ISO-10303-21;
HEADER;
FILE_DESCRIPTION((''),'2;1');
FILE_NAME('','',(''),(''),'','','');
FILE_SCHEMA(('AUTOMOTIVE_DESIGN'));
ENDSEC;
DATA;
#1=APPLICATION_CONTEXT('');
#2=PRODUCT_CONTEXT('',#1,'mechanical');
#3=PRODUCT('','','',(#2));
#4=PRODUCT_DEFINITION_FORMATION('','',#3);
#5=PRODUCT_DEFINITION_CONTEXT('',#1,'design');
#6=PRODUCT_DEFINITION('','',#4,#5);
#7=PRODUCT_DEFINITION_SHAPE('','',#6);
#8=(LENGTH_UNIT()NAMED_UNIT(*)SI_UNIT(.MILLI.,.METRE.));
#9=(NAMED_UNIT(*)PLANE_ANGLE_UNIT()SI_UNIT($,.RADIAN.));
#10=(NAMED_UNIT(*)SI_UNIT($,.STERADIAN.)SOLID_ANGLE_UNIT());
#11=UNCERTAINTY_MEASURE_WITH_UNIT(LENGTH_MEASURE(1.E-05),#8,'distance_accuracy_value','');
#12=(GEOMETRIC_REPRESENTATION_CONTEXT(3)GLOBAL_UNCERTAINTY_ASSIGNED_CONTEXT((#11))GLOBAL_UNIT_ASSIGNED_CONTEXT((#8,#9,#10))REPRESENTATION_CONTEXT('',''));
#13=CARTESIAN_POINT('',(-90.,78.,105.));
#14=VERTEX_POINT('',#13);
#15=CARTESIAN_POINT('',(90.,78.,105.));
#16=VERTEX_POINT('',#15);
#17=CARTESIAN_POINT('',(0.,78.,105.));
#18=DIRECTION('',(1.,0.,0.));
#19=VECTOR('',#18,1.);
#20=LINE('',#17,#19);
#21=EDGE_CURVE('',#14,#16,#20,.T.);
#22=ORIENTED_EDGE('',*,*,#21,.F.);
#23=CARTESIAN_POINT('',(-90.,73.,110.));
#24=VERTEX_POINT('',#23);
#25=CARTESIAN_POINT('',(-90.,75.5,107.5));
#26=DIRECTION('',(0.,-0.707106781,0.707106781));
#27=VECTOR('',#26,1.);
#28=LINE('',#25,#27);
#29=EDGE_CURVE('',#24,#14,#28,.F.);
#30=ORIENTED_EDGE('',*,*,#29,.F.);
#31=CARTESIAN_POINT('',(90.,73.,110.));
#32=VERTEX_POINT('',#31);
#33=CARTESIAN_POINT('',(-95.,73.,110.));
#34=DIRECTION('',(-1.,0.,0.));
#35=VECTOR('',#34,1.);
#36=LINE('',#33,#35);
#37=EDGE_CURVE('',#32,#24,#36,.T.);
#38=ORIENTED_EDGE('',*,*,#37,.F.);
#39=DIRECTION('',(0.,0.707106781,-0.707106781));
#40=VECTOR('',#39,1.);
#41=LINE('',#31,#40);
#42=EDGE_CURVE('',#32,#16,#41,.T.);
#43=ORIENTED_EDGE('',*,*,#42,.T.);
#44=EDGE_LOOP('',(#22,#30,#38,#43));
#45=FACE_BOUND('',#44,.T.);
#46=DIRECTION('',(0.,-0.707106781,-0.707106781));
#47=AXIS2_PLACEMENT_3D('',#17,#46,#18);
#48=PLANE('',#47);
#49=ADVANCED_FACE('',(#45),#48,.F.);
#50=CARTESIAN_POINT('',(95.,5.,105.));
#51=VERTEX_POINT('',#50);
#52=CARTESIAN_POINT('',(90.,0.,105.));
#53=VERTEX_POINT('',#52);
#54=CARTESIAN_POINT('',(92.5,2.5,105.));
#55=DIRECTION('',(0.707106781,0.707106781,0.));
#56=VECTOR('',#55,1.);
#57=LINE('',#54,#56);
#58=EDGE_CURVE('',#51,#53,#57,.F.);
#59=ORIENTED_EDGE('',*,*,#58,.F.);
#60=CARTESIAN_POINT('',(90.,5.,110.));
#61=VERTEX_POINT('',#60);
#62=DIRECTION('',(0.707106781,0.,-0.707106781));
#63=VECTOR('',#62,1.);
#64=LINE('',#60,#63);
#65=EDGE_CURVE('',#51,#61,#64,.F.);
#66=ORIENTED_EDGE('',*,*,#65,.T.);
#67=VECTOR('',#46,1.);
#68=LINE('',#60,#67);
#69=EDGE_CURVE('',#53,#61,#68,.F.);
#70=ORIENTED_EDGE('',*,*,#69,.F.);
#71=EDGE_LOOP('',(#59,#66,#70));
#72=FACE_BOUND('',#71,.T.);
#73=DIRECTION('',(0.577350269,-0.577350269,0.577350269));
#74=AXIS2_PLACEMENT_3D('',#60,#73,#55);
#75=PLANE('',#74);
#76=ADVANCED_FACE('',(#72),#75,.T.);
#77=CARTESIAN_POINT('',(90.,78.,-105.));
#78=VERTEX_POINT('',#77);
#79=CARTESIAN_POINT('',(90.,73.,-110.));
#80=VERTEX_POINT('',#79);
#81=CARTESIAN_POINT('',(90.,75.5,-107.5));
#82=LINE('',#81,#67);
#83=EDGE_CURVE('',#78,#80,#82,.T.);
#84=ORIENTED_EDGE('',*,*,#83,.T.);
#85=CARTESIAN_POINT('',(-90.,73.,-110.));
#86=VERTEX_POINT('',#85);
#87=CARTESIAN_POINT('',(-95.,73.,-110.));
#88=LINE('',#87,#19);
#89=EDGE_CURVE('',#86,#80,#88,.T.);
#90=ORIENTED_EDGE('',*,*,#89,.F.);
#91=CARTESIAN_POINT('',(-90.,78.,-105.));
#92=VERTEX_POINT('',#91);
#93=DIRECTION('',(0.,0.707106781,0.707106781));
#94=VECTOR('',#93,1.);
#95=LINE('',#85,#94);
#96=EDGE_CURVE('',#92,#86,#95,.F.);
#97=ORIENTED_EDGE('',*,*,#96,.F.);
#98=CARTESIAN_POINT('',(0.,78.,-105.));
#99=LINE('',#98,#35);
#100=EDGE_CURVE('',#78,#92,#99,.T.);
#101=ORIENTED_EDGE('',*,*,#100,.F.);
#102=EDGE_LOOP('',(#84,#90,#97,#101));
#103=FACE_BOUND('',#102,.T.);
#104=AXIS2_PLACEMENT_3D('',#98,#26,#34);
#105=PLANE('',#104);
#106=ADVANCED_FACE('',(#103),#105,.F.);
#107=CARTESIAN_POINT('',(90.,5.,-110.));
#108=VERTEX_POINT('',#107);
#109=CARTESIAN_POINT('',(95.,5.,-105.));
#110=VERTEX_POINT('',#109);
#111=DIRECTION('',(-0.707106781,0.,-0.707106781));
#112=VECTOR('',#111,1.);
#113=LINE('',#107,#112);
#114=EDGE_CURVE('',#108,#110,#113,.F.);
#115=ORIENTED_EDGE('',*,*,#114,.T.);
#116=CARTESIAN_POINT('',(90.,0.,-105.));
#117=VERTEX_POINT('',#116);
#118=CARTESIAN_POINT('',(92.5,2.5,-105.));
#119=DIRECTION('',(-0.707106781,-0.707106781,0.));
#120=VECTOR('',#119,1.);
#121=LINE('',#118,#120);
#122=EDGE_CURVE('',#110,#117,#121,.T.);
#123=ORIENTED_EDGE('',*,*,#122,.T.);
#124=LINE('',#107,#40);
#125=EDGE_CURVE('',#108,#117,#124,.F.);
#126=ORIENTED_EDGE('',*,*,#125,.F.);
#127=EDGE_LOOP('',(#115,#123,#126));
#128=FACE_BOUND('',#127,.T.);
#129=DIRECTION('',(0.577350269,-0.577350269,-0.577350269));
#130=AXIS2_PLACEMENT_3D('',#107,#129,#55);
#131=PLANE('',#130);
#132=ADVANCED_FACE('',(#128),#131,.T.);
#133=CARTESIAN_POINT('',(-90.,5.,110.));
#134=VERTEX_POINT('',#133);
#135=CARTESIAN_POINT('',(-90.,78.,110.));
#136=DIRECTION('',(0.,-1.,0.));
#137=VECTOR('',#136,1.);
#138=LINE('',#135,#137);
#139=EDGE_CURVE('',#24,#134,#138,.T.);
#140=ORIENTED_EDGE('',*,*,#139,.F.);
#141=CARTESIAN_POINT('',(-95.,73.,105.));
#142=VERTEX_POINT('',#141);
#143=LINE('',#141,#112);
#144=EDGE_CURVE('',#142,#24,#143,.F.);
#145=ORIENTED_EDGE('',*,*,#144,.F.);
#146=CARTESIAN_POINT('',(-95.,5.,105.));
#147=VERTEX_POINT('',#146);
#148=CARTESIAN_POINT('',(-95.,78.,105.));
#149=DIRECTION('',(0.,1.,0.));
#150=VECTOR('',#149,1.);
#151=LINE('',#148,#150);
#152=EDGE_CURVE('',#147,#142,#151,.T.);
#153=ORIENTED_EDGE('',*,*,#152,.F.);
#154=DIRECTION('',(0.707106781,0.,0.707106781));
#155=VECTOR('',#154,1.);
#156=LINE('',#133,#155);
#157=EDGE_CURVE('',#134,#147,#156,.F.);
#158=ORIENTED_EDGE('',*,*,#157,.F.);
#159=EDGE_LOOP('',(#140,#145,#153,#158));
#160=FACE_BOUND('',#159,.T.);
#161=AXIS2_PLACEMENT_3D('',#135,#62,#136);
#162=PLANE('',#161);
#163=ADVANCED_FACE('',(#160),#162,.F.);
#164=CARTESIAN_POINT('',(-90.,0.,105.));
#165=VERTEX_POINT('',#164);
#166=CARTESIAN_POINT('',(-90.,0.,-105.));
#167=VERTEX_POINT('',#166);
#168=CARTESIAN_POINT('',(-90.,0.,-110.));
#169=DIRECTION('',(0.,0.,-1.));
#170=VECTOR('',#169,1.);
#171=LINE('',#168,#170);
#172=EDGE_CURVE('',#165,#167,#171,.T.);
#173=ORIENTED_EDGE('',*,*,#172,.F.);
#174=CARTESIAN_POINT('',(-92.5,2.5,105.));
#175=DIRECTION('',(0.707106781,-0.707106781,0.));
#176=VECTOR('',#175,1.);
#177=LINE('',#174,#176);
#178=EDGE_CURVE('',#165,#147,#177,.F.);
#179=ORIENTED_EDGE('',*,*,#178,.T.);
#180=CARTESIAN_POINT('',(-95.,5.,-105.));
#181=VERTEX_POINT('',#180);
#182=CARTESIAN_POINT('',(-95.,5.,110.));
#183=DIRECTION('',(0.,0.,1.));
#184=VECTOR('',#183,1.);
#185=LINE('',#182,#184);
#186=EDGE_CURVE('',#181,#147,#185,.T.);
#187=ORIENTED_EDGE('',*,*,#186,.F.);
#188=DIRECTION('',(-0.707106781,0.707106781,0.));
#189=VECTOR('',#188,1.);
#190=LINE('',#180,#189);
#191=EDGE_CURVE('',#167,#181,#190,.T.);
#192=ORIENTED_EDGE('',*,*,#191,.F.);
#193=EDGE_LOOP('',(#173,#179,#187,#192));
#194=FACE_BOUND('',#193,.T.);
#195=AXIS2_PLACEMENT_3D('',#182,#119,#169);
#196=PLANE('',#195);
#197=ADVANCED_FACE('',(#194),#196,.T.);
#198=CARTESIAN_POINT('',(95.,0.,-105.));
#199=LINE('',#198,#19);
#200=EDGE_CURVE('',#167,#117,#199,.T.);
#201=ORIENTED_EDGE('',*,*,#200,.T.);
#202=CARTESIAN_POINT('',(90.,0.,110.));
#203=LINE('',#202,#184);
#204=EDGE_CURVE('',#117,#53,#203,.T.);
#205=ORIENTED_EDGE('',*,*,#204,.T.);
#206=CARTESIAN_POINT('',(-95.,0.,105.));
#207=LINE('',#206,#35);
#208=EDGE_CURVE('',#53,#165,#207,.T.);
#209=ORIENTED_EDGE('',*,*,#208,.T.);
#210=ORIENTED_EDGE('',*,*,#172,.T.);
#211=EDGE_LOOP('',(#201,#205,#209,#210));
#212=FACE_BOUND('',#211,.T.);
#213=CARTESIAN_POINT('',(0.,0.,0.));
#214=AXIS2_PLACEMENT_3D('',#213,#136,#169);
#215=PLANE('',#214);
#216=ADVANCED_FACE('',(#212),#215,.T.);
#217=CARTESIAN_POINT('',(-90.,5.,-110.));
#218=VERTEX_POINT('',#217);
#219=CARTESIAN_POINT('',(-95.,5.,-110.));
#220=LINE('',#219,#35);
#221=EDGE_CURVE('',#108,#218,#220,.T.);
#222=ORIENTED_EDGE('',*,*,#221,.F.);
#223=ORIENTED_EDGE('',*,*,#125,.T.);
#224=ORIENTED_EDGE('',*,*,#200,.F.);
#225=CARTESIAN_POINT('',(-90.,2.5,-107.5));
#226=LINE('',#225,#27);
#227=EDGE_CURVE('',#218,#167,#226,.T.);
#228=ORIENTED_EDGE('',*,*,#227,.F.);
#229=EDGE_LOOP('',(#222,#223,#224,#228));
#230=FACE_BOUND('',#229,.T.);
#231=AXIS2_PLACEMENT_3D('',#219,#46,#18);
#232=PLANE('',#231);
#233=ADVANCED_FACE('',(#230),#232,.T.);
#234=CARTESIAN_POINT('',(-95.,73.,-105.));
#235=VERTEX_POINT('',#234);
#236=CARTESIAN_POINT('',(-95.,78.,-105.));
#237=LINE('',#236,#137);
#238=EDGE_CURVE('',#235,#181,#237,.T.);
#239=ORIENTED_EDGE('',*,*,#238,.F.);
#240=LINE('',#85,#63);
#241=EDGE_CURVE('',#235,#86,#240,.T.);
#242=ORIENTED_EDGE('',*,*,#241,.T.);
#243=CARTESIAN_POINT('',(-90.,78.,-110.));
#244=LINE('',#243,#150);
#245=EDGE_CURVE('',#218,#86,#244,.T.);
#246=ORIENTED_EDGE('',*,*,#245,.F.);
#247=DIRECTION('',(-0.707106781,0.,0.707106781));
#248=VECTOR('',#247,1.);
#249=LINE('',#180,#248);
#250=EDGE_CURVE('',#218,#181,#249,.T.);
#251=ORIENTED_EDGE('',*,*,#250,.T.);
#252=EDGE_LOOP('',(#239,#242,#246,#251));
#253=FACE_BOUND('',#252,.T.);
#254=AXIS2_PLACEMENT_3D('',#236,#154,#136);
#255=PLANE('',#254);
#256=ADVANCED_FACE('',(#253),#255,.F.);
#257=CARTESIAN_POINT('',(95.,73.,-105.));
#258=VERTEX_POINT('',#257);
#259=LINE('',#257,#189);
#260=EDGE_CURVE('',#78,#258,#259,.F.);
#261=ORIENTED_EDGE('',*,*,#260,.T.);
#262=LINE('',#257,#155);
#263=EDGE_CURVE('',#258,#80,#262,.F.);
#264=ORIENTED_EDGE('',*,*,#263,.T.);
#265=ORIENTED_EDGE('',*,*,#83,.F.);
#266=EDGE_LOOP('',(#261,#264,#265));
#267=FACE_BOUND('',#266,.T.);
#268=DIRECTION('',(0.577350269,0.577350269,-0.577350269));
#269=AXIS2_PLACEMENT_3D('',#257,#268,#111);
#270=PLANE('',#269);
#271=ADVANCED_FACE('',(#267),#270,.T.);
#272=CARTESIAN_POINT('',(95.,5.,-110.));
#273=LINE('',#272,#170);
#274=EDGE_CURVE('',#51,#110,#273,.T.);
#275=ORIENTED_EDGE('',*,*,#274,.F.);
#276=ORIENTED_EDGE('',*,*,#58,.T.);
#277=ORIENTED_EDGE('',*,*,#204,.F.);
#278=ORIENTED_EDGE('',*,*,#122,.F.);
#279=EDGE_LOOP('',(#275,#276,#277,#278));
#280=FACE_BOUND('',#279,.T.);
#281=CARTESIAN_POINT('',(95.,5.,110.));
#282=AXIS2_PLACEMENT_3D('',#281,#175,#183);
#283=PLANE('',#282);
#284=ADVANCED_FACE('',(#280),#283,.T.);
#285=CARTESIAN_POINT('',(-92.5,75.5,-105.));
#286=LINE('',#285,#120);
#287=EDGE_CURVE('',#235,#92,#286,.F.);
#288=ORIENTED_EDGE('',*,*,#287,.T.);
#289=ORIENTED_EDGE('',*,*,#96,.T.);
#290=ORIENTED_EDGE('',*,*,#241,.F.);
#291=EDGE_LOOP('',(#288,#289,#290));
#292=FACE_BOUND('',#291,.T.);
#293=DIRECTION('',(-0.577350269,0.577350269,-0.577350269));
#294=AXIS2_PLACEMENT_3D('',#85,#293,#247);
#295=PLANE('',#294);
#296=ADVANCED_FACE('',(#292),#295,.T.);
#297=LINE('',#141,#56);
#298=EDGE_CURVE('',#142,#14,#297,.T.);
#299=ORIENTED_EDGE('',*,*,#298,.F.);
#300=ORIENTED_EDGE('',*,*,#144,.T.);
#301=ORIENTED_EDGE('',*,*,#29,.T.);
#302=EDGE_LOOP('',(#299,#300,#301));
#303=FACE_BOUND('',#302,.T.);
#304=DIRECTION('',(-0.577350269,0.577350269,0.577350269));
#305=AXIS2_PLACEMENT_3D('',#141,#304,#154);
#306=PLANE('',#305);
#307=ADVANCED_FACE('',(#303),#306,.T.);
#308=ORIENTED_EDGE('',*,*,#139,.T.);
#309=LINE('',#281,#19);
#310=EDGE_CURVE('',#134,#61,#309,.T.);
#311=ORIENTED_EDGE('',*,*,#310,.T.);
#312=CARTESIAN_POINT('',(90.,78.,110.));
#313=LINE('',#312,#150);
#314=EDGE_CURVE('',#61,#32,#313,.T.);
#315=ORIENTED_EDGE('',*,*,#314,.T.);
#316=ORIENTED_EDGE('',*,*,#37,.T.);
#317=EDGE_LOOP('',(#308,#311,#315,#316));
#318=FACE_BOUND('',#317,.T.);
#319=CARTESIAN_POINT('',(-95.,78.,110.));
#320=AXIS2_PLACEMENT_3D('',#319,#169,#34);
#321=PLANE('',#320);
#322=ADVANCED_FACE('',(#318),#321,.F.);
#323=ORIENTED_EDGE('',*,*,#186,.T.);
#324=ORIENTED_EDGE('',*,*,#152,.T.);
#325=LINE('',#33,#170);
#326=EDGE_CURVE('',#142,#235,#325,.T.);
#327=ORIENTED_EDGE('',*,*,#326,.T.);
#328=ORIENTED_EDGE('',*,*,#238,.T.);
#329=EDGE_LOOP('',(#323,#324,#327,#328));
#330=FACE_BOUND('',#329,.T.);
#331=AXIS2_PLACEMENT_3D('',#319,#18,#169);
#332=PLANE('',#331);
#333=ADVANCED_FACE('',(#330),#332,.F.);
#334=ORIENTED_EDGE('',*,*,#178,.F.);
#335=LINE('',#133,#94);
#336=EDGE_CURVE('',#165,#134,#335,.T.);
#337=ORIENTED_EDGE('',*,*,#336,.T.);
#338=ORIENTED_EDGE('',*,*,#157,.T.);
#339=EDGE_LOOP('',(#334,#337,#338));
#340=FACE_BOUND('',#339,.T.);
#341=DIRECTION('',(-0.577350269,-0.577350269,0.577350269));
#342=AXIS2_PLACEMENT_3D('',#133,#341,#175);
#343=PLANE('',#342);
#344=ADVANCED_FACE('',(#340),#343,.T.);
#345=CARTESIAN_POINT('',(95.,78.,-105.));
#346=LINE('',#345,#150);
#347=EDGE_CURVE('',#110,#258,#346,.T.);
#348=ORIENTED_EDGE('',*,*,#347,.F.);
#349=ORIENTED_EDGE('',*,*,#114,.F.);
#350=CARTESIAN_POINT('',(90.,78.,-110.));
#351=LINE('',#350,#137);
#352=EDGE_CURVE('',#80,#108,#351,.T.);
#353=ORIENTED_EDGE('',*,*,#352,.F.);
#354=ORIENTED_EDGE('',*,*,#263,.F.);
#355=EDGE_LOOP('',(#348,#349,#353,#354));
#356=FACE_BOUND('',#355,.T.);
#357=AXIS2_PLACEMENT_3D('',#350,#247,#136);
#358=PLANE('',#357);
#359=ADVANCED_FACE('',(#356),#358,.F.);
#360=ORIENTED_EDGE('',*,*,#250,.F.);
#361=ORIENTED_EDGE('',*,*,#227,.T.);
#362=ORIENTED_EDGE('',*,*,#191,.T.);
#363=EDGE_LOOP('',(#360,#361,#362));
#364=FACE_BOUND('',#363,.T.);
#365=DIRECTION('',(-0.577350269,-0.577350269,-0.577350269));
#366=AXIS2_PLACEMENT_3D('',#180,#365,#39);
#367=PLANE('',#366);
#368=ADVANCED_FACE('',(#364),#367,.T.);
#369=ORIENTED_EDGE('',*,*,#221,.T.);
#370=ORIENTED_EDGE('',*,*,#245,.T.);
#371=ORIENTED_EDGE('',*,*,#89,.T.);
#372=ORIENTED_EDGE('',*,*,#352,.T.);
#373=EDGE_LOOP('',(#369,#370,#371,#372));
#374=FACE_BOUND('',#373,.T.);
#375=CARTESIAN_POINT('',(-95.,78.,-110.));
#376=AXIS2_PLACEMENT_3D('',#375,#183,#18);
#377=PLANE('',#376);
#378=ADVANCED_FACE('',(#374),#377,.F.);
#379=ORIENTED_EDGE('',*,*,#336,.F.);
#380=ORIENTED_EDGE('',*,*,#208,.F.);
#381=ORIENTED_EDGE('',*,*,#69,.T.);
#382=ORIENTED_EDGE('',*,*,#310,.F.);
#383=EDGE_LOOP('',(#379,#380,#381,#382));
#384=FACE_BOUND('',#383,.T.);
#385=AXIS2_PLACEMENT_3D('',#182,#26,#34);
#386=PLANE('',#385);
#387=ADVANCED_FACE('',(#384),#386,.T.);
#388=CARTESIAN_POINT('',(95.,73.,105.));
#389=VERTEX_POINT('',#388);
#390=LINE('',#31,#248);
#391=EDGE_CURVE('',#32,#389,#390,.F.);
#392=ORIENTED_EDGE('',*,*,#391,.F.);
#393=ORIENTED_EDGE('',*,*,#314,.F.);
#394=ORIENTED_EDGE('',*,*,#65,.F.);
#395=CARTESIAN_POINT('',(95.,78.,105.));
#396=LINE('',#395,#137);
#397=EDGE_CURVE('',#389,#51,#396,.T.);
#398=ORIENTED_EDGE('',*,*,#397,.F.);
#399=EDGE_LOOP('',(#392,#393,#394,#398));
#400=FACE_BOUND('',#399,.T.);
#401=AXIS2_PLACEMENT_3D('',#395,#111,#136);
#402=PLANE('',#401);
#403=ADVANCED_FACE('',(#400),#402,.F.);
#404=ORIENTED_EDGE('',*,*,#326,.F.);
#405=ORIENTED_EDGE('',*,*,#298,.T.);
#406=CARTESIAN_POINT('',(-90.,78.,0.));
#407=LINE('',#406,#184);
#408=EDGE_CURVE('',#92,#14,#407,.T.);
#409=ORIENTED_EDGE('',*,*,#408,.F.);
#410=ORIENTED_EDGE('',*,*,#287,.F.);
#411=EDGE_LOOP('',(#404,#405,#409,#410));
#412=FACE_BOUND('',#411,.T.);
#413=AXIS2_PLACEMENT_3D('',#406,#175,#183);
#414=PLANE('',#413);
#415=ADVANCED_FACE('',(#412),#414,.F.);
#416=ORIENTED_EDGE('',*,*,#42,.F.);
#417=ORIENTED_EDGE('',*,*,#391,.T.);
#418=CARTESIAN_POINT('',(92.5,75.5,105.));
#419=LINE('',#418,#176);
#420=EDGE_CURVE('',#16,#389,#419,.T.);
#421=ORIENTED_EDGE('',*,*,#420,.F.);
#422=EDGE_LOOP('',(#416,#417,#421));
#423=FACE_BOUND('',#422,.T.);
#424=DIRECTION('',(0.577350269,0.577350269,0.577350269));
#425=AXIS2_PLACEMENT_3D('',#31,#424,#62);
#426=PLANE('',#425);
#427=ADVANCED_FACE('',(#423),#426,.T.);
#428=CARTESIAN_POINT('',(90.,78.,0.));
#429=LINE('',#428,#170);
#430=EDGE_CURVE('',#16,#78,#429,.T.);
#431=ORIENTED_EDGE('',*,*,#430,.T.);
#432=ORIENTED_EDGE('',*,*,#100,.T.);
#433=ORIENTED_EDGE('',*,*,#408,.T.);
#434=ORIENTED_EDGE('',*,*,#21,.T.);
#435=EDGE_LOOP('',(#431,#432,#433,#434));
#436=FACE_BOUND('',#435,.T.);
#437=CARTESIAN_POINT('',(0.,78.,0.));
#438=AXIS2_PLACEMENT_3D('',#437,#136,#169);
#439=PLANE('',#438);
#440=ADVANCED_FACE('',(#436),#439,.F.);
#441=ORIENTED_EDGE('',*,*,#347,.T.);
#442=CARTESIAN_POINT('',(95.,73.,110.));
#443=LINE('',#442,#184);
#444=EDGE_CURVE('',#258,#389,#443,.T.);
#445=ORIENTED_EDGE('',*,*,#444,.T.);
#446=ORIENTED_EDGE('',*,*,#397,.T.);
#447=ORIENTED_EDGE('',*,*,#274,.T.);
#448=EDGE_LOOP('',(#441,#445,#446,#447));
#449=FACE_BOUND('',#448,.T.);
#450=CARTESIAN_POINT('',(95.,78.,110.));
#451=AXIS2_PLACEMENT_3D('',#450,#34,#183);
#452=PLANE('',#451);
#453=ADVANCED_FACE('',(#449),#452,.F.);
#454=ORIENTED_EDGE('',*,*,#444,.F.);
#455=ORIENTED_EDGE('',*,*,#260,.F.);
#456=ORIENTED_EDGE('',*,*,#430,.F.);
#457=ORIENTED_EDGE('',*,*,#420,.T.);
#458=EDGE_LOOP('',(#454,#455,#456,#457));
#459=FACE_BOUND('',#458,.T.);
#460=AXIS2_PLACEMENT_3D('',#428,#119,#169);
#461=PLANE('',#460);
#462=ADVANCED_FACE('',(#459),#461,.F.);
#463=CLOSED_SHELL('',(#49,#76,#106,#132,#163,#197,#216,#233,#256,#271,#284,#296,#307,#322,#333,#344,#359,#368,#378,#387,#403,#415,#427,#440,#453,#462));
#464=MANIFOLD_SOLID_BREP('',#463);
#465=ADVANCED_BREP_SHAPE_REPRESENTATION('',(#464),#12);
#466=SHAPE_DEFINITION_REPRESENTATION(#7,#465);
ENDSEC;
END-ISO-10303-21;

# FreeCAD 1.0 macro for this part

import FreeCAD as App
import Part
import Sketcher

doc = App.newDocument("Part")
params = doc.addObject("Spreadsheet::Sheet", "Params")
for row, (alias, value) in enumerate([
    ("sketch1_width", "190 mm"),
    ("sketch1_height", "220 mm"),
    ("pad1_length", "78 mm"),
    ("chamfer_size", "5 mm"),
], start=1):
    params.set(f"A{row}", alias)
    params.set(f"B{row}", "=" + value)
    params.setAlias(f"B{row}", alias)

body = doc.addObject("PartDesign::Body", "Body")

sketch1 = doc.addObject("Sketcher::SketchObject", "Sketch")
body.addObject(sketch1)
sketch1.AttachmentSupport = (doc.XZ_Plane, [""])
sketch1.MapMode = "FlatFace"
sketch1.addGeometry(Part.LineSegment(App.Vector(-95, -110, 0), App.Vector(-95, 110, 0)), False)
sketch1.addGeometry(Part.LineSegment(App.Vector(-95, 110, 0), App.Vector(95, 110, 0)), False)
sketch1.addGeometry(Part.LineSegment(App.Vector(95, 110, 0), App.Vector(95, -110, 0)), False)
sketch1.addGeometry(Part.LineSegment(App.Vector(95, -110, 0), App.Vector(-95, -110, 0)), False)
sketch1.addConstraint(Sketcher.Constraint("Coincident", 0, 2, 1, 1))
sketch1.addConstraint(Sketcher.Constraint("Coincident", 1, 2, 2, 1))
sketch1.addConstraint(Sketcher.Constraint("Coincident", 2, 2, 3, 1))
sketch1.addConstraint(Sketcher.Constraint("Coincident", 3, 2, 0, 1))
sketch1.addConstraint(Sketcher.Constraint("Vertical", 0))
sketch1.addConstraint(Sketcher.Constraint("Horizontal", 1))
sketch1.addConstraint(Sketcher.Constraint("Vertical", 2))
sketch1.addConstraint(Sketcher.Constraint("Horizontal", 3))
sketch1.addConstraint(Sketcher.Constraint("Symmetric", 0, 2, 2, 2, -1, 1))
sketch1.addConstraint(Sketcher.Constraint("DistanceX", 1, 1, 1, 2, 190.0))
sketch1.addConstraint(Sketcher.Constraint("DistanceY", 0, 1, 0, 2, 220.0))
sketch1.setExpression("Constraints[9]", "Params.sketch1_width")
sketch1.setExpression("Constraints[10]", "Params.sketch1_height")
pad1 = doc.addObject("PartDesign::Pad", "Pad")
body.addObject(pad1)
pad1.Profile = sketch1
pad1.setExpression("Length", "Params.pad1_length")
pad1.Reversed = True
doc.recompute()

chamfer = doc.addObject("PartDesign::Chamfer", "Chamfer")
body.addObject(chamfer)
chamfer.Base = (pad1, ["Edge1"])
chamfer.UseAllEdges = True
chamfer.setExpression("Size", "Params.chamfer_size")

doc.recompute()
